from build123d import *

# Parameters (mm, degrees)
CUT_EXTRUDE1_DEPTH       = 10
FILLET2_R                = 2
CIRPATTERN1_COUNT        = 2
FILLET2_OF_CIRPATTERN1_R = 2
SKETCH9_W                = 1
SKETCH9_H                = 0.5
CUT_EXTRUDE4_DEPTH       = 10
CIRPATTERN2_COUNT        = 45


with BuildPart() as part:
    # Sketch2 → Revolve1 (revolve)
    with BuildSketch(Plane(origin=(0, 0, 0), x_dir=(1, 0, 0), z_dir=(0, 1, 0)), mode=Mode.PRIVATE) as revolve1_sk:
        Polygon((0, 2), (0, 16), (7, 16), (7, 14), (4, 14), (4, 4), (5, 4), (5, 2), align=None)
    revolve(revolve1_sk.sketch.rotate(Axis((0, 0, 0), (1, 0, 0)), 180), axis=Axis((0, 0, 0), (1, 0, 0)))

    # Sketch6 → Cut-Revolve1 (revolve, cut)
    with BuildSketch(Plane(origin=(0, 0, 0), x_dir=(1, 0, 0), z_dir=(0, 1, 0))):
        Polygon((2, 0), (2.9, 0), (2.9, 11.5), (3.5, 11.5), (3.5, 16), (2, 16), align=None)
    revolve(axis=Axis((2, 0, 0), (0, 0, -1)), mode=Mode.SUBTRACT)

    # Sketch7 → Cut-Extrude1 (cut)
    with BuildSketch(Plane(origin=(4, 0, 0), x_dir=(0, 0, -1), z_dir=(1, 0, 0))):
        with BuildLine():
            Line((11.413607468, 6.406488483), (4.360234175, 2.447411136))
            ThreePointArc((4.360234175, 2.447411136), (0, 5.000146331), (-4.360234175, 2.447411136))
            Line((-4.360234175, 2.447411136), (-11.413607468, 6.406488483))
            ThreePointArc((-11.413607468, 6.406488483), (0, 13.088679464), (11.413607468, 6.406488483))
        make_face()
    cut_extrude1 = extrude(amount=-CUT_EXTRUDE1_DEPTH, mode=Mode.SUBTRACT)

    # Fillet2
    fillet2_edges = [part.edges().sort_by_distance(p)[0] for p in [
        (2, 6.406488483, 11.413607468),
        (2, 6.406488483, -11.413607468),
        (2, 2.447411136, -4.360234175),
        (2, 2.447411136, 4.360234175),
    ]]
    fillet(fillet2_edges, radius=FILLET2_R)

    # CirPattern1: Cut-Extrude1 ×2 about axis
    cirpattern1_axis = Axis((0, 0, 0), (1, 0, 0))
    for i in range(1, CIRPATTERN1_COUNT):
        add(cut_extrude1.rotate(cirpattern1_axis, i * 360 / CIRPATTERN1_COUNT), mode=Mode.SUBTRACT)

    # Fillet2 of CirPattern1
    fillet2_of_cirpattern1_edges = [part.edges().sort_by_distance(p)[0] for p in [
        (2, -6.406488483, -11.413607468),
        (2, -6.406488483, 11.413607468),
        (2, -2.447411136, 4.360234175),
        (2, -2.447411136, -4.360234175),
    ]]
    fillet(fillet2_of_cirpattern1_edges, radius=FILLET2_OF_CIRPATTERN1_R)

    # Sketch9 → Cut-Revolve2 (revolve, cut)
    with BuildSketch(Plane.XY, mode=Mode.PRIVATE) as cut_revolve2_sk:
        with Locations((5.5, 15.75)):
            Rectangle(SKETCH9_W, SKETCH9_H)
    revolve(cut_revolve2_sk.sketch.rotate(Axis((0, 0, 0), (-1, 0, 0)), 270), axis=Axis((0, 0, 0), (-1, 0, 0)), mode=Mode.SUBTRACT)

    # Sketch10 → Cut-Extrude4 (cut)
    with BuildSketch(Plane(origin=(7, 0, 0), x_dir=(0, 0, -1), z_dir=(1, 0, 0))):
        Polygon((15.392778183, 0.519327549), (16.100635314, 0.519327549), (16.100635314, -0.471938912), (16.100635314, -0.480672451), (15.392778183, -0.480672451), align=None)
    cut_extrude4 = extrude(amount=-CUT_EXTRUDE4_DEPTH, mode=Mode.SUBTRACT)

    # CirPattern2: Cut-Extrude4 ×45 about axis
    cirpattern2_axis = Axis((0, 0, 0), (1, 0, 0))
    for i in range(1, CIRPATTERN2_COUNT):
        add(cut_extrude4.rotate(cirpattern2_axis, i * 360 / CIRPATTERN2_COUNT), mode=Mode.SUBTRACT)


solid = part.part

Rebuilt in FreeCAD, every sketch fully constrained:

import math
import FreeCAD as App
import Part
import Sketcher
from FreeCAD import Vector
Q = App.Units.Quantity


def edges_at(feature, points):
    """Names of the edges that pass closest to the given points."""
    edges = feature.Shape.Edges
    near = lambda p: min(range(len(edges)), key=lambda i: edges[i].distToShape(Part.Vertex(*p))[0])
    return sorted({f"Edge{near(p) + 1}" for p in points})

doc = App.newDocument("Part")
body = doc.addObject("PartDesign::Body", "Body")

# Sketch on XZ plane
sketch1 = doc.addObject("Sketcher::SketchObject", "Sketch")
body.addObject(sketch1)
sketch1.AttachmentSupport = (doc.XZ_Plane, [""])
sketch1.MapMode = "FlatFace"
sketch1.addGeometry(Part.LineSegment(Vector(0, -16, 0), Vector(0, -2, 0)), False)
sketch1.addGeometry(Part.LineSegment(Vector(0, -2, 0), Vector(5, -2, 0)), False)
sketch1.addGeometry(Part.LineSegment(Vector(5, -2, 0), Vector(5, -4, 0)), False)
sketch1.addGeometry(Part.LineSegment(Vector(5, -4, 0), Vector(4, -4, 0)), False)
sketch1.addGeometry(Part.LineSegment(Vector(4, -4, 0), Vector(4, -14, 0)), False)
sketch1.addGeometry(Part.LineSegment(Vector(4, -14, 0), Vector(7, -14, 0)), False)
sketch1.addGeometry(Part.LineSegment(Vector(7, -14, 0), Vector(7, -16, 0)), False)
sketch1.addGeometry(Part.LineSegment(Vector(7, -16, 0), Vector(0, -16, 0)), False)
sketch1.addConstraint(Sketcher.Constraint("Coincident", 0, 2, 1, 1))
sketch1.addConstraint(Sketcher.Constraint("Coincident", 1, 2, 2, 1))
sketch1.addConstraint(Sketcher.Constraint("Coincident", 2, 2, 3, 1))
sketch1.addConstraint(Sketcher.Constraint("Coincident", 3, 2, 4, 1))
sketch1.addConstraint(Sketcher.Constraint("Coincident", 4, 2, 5, 1))
sketch1.addConstraint(Sketcher.Constraint("Coincident", 5, 2, 6, 1))
sketch1.addConstraint(Sketcher.Constraint("Coincident", 6, 2, 7, 1))
sketch1.addConstraint(Sketcher.Constraint("Coincident", 7, 2, 0, 1))
sketch1.addConstraint(Sketcher.Constraint("Vertical", 0))
sketch1.addConstraint(Sketcher.Constraint("Horizontal", 1))
sketch1.addConstraint(Sketcher.Constraint("Vertical", 2))
sketch1.addConstraint(Sketcher.Constraint("Horizontal", 3))
sketch1.addConstraint(Sketcher.Constraint("Vertical", 4))
sketch1.addConstraint(Sketcher.Constraint("Horizontal", 5))
sketch1.addConstraint(Sketcher.Constraint("Vertical", 6))
sketch1.addConstraint(Sketcher.Constraint("Horizontal", 7))
sketch1.addConstraint(Sketcher.Constraint("PointOnObject", 0, 2, -2))
sketch1.addConstraint(Sketcher.Constraint("Equal", 2, 6))
sketch1.addConstraint(Sketcher.Constraint("DistanceX", 1, 1, 1, 2, Q("5 mm")))
sketch1.addConstraint(Sketcher.Constraint("DistanceX", 3, 2, 3, 1, Q("1 mm")))
sketch1.addConstraint(Sketcher.Constraint("DistanceX", 5, 1, 5, 2, Q("3 mm")))
sketch1.addConstraint(Sketcher.Constraint("DistanceY", 0, 1, 0, 2, Q("14 mm")))
sketch1.addConstraint(Sketcher.Constraint("DistanceY", 2, 2, 2, 1, Q("2 mm")))
sketch1.addConstraint(Sketcher.Constraint("DistanceY", 0, 2, -1, 1, Q("2 mm")))
revolution = doc.addObject("PartDesign::Revolution", "Revolution")
body.addObject(revolution)
revolution.Profile = sketch1
revolution.ReferenceAxis = (sketch1, ["H_Axis"])
revolution.Angle = 360

# Sketch on XZ plane
sketch2 = doc.addObject("Sketcher::SketchObject", "Sketch001")
body.addObject(sketch2)
sketch2.AttachmentSupport = (doc.XZ_Plane, [""])
sketch2.MapMode = "FlatFace"
sketch2.addGeometry(Part.LineSegment(Vector(2, 0, 0), Vector(2.9, 0, 0)), False)
sketch2.addGeometry(Part.LineSegment(Vector(2.9, 0, 0), Vector(2.9, -11.5, 0)), False)
sketch2.addGeometry(Part.LineSegment(Vector(2.9, -11.5, 0), Vector(3.5, -11.5, 0)), False)
sketch2.addGeometry(Part.LineSegment(Vector(3.5, -11.5, 0), Vector(3.5, -16, 0)), False)
sketch2.addGeometry(Part.LineSegment(Vector(3.5, -16, 0), Vector(2, -16, 0)), False)
sketch2.addGeometry(Part.LineSegment(Vector(2, -16, 0), Vector(2, 0, 0)), False)
sketch2.addGeometry(Part.LineSegment(Vector(2, 0, 0), Vector(2, -16, 0)), True)  # axis
sketch2.addConstraint(Sketcher.Constraint("Coincident", 0, 2, 1, 1))
sketch2.addConstraint(Sketcher.Constraint("Coincident", 1, 2, 2, 1))
sketch2.addConstraint(Sketcher.Constraint("Coincident", 2, 2, 3, 1))
sketch2.addConstraint(Sketcher.Constraint("Coincident", 3, 2, 4, 1))
sketch2.addConstraint(Sketcher.Constraint("Coincident", 4, 2, 5, 1))
sketch2.addConstraint(Sketcher.Constraint("Coincident", 5, 2, 0, 1))
sketch2.addConstraint(Sketcher.Constraint("Horizontal", 0))
sketch2.addConstraint(Sketcher.Constraint("Vertical", 1))
sketch2.addConstraint(Sketcher.Constraint("Horizontal", 2))
sketch2.addConstraint(Sketcher.Constraint("Vertical", 3))
sketch2.addConstraint(Sketcher.Constraint("Horizontal", 4))
sketch2.addConstraint(Sketcher.Constraint("Vertical", 5))
sketch2.addConstraint(Sketcher.Constraint("Vertical", 6))
sketch2.addConstraint(Sketcher.Constraint("Coincident", 6, 1, 5, 2))
sketch2.addConstraint(Sketcher.Constraint("PointOnObject", 0, 2, -1))
sketch2.addConstraint(Sketcher.Constraint("Horizontal", 3, 2, 6, 2))
sketch2.addConstraint(Sketcher.Constraint("DistanceY", 5, 1, 5, 2, Q("16 mm")))
sketch2.addConstraint(Sketcher.Constraint("DistanceX", 0, 1, 0, 2, Q("0.9 mm")))
sketch2.addConstraint(Sketcher.Constraint("DistanceX", 2, 1, 2, 2, Q("0.6 mm")))
sketch2.addConstraint(Sketcher.Constraint("DistanceY", 1, 2, 1, 1, Q("11.5 mm")))
sketch2.addConstraint(Sketcher.Constraint("DistanceX", -1, 1, 4, 2, Q("2 mm")))
groove = doc.addObject("PartDesign::Groove", "Groove")
body.addObject(groove)
groove.Profile = sketch2
groove.ReferenceAxis = (sketch2, ["Axis0"])
groove.Angle = 360

# Sketch on YZ plane
sketch3 = doc.addObject("Sketcher::SketchObject", "Sketch002")
body.addObject(sketch3)
sketch3.AttachmentSupport = (doc.YZ_Plane, [""])
sketch3.MapMode = "FlatFace"
sketch3.AttachmentOffset = App.Placement(Vector(0, 0, 4), App.Rotation())
sketch3.addGeometry(Part.LineSegment(Vector(2.447411, -4.360234, 0), Vector(6.406488, -11.413607, 0)), False)
sketch3.addGeometry(Part.ArcOfCircle(Part.Circle(Vector(0, 0, 0), Vector(0, 0, 1), 13.088679), math.radians(-60.694386), math.radians(60.694386)), False)
sketch3.addGeometry(Part.LineSegment(Vector(6.406488, 11.413607, 0), Vector(2.447411, 4.360234, 0)), False)
sketch3.addGeometry(Part.ArcOfCircle(Part.Circle(Vector(0, 0, 0), Vector(0, 0, 1), 5.000146), math.radians(-60.694386), math.radians(60.694386)), False)
sketch3.addConstraint(Sketcher.Constraint("Coincident", 0, 2, 1, 1))
sketch3.addConstraint(Sketcher.Constraint("Coincident", 1, 2, 2, 1))
sketch3.addConstraint(Sketcher.Constraint("Coincident", 2, 2, 3, 2))
sketch3.addConstraint(Sketcher.Constraint("Coincident", 3, 1, 0, 1))
sketch3.addConstraint(Sketcher.Constraint("Coincident", 1, 3, -1, 1))
sketch3.addConstraint(Sketcher.Constraint("Coincident", 3, 3, -1, 1))
sketch3.addConstraint(Sketcher.Constraint("Vertical", 0, 2, 1, 2))
sketch3.addConstraint(Sketcher.Constraint("Vertical", 2, 2, 3, 1))
sketch3.addConstraint(Sketcher.Constraint("Radius", 1, Q("13.088679 mm")))
sketch3.addConstraint(Sketcher.Constraint("Radius", 3, Q("5.000146 mm")))
sketch3.addConstraint(Sketcher.Constraint("DistanceX", -1, 1, 0, 2, Q("6.406488 mm")))
sketch3.addConstraint(Sketcher.Constraint("DistanceX", -1, 1, 2, 2, Q("2.447411 mm")))
pocket1 = doc.addObject("PartDesign::Pocket", "Pocket")
body.addObject(pocket1)
pocket1.Profile = sketch3
pocket1.Length = 10
doc.recompute()

fillet = doc.addObject("PartDesign::Fillet", "Fillet")
body.addObject(fillet)
fillet.Base = (pocket1, edges_at(pocket1, [
    (2, 6.406, 11.414),
    (2, 6.406, -11.414),
    (2, 2.447, -4.36),
    (2, 2.447, 4.36),
]))
fillet.Radius = 2
doc.recompute()

polarpattern = doc.addObject("PartDesign::PolarPattern", "PolarPattern")
body.addObject(polarpattern)
polarpattern.Originals = [pocket1]
polarpattern.Axis = (doc.X_Axis, [""])
polarpattern.Angle = 360
polarpattern.Occurrences = 2
body.Tip = polarpattern
doc.recompute()

fillet2 = doc.addObject("PartDesign::Fillet", "Fillet001")
body.addObject(fillet2)
fillet2.Base = (polarpattern, edges_at(polarpattern, [
    (2, -6.406, -11.414),
    (2, -6.406, 11.414),
    (2, -2.447, 4.36),
    (2, -2.447, -4.36),
]))
fillet2.Radius = 2

# Sketch on XY plane
sketch4 = doc.addObject("Sketcher::SketchObject", "Sketch003")
body.addObject(sketch4)
sketch4.AttachmentSupport = (doc.XY_Plane, [""])
sketch4.MapMode = "FlatFace"
sketch4.addGeometry(Part.LineSegment(Vector(5, 16, 0), Vector(5, 15.5, 0)), False)
sketch4.addGeometry(Part.LineSegment(Vector(5, 15.5, 0), Vector(6, 15.5, 0)), False)
sketch4.addGeometry(Part.LineSegment(Vector(6, 15.5, 0), Vector(6, 16, 0)), False)
sketch4.addGeometry(Part.LineSegment(Vector(6, 16, 0), Vector(5, 16, 0)), False)
sketch4.addConstraint(Sketcher.Constraint("Coincident", 0, 2, 1, 1))
sketch4.addConstraint(Sketcher.Constraint("Coincident", 1, 2, 2, 1))
sketch4.addConstraint(Sketcher.Constraint("Coincident", 2, 2, 3, 1))
sketch4.addConstraint(Sketcher.Constraint("Coincident", 3, 2, 0, 1))
sketch4.addConstraint(Sketcher.Constraint("Vertical", 0))
sketch4.addConstraint(Sketcher.Constraint("Horizontal", 1))
sketch4.addConstraint(Sketcher.Constraint("Vertical", 2))
sketch4.addConstraint(Sketcher.Constraint("Horizontal", 3))
sketch4.addConstraint(Sketcher.Constraint("DistanceX", 1, 1, 1, 2, Q("1 mm")))
sketch4.addConstraint(Sketcher.Constraint("DistanceY", 0, 2, 0, 1, Q("0.5 mm")))
sketch4.addConstraint(Sketcher.Constraint("DistanceX", -1, 1, 0, 2, Q("5 mm")))
sketch4.addConstraint(Sketcher.Constraint("DistanceY", -1, 1, 2, 2, Q("16 mm")))
groove2 = doc.addObject("PartDesign::Groove", "Groove001")
body.addObject(groove2)
groove2.Profile = sketch4
groove2.ReferenceAxis = (sketch4, ["H_Axis"])
groove2.Angle = 360

# Sketch on YZ plane
sketch5 = doc.addObject("Sketcher::SketchObject", "Sketch004")
body.addObject(sketch5)
sketch5.AttachmentSupport = (doc.YZ_Plane, [""])
sketch5.MapMode = "FlatFace"
sketch5.AttachmentOffset = App.Placement(Vector(0, 0, 7), App.Rotation())
sketch5.addGeometry(Part.LineSegment(Vector(0.519328, -16.100635, 0), Vector(0.519328, -15.392778, 0)), False)
sketch5.addGeometry(Part.LineSegment(Vector(0.519328, -15.392778, 0), Vector(-0.480672, -15.392778, 0)), False)
sketch5.addGeometry(Part.LineSegment(Vector(-0.480672, -15.392778, 0), Vector(-0.480672, -16.100635, 0)), False)
sketch5.addGeometry(Part.LineSegment(Vector(-0.480672, -16.100635, 0), Vector(0.519328, -16.100635, 0)), False)
sketch5.addConstraint(Sketcher.Constraint("Coincident", 0, 2, 1, 1))
sketch5.addConstraint(Sketcher.Constraint("Coincident", 1, 2, 2, 1))
sketch5.addConstraint(Sketcher.Constraint("Coincident", 2, 2, 3, 1))
sketch5.addConstraint(Sketcher.Constraint("Coincident", 3, 2, 0, 1))
sketch5.addConstraint(Sketcher.Constraint("Vertical", 0))
sketch5.addConstraint(Sketcher.Constraint("Horizontal", 1))
sketch5.addConstraint(Sketcher.Constraint("Vertical", 2))
sketch5.addConstraint(Sketcher.Constraint("Horizontal", 3))
sketch5.addConstraint(Sketcher.Constraint("DistanceX", 1, 2, 1, 1, Q("1 mm")))
sketch5.addConstraint(Sketcher.Constraint("DistanceY", 0, 1, 0, 2, Q("0.707857 mm")))
sketch5.addConstraint(Sketcher.Constraint("DistanceY", 0, 2, -1, 1, Q("15.392778 mm")))
sketch5.addConstraint(Sketcher.Constraint("DistanceX", -1, 1, 0, 2, Q("0.519328 mm")))
pocket2 = doc.addObject("PartDesign::Pocket", "Pocket001")
body.addObject(pocket2)
pocket2.Profile = sketch5
pocket2.Length = 10
doc.recompute()

polarpattern2 = doc.addObject("PartDesign::PolarPattern", "PolarPattern001")
body.addObject(polarpattern2)
polarpattern2.Originals = [pocket2]
polarpattern2.Axis = (doc.X_Axis, [""])
polarpattern2.Angle = 360
polarpattern2.Occurrences = 45
body.Tip = polarpattern2

doc.recompute()
